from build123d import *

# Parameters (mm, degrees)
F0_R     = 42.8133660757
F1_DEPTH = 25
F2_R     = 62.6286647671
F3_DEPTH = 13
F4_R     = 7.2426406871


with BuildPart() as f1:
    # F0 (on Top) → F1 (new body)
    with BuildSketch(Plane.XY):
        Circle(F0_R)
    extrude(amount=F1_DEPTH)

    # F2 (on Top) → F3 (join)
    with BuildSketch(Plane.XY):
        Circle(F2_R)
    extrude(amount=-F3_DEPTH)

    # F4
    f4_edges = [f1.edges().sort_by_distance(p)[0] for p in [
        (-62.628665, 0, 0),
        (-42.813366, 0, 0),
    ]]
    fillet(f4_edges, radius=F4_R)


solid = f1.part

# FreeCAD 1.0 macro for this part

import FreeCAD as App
import Part
import Sketcher
from FreeCAD import Vector


def edges_at(feature, points):
    """Names of the edges that pass closest to the given points."""
    edges = feature.Shape.Edges
    near = lambda p: min(range(len(edges)), key=lambda i: edges[i].distToShape(Part.Vertex(*p))[0])
    return sorted({f"Edge{near(p) + 1}" for p in points})

doc = App.newDocument("Part")
body = doc.addObject("PartDesign::Body", "Body")

# Sketch on XY plane
sketch1 = body.newObject("Sketcher::SketchObject", "Sketch")
sketch1.AttachmentSupport = (doc.getObject("XY_Plane"), [""])
sketch1.MapMode = "FlatFace"
sketch1.addGeometry(Part.Circle(Vector(0, 0, 0), Vector(0, 0, 1), 42.813366), False)
sketch1.addConstraint(Sketcher.Constraint("Coincident", 0, 3, -1, 1))
sketch1.addConstraint(Sketcher.Constraint("Diameter", 0, 85.626732))
pad1 = body.newObject("PartDesign::Pad", "Pad")
pad1.Profile = sketch1
pad1.Length = 25

# Sketch on XY plane
sketch2 = body.newObject("Sketcher::SketchObject", "Sketch001")
sketch2.AttachmentSupport = (doc.getObject("XY_Plane"), [""])
sketch2.MapMode = "FlatFace"
sketch2.addGeometry(Part.Circle(Vector(0, 0, 0), Vector(0, 0, 1), 62.628665), False)
sketch2.addConstraint(Sketcher.Constraint("Coincident", 0, 3, -1, 1))
sketch2.addConstraint(Sketcher.Constraint("Diameter", 0, 125.25733))
pad2 = body.newObject("PartDesign::Pad", "Pad001")
pad2.Profile = sketch2
pad2.Length = 13
pad2.Reversed = True
doc.recompute()

fillet = body.newObject("PartDesign::Fillet", "Fillet")
fillet.Base = (pad2, edges_at(pad2, [(-62.629, 0, 0), (-42.813, 0, 0)]))
fillet.Radius = 7.242641

doc.recompute()
